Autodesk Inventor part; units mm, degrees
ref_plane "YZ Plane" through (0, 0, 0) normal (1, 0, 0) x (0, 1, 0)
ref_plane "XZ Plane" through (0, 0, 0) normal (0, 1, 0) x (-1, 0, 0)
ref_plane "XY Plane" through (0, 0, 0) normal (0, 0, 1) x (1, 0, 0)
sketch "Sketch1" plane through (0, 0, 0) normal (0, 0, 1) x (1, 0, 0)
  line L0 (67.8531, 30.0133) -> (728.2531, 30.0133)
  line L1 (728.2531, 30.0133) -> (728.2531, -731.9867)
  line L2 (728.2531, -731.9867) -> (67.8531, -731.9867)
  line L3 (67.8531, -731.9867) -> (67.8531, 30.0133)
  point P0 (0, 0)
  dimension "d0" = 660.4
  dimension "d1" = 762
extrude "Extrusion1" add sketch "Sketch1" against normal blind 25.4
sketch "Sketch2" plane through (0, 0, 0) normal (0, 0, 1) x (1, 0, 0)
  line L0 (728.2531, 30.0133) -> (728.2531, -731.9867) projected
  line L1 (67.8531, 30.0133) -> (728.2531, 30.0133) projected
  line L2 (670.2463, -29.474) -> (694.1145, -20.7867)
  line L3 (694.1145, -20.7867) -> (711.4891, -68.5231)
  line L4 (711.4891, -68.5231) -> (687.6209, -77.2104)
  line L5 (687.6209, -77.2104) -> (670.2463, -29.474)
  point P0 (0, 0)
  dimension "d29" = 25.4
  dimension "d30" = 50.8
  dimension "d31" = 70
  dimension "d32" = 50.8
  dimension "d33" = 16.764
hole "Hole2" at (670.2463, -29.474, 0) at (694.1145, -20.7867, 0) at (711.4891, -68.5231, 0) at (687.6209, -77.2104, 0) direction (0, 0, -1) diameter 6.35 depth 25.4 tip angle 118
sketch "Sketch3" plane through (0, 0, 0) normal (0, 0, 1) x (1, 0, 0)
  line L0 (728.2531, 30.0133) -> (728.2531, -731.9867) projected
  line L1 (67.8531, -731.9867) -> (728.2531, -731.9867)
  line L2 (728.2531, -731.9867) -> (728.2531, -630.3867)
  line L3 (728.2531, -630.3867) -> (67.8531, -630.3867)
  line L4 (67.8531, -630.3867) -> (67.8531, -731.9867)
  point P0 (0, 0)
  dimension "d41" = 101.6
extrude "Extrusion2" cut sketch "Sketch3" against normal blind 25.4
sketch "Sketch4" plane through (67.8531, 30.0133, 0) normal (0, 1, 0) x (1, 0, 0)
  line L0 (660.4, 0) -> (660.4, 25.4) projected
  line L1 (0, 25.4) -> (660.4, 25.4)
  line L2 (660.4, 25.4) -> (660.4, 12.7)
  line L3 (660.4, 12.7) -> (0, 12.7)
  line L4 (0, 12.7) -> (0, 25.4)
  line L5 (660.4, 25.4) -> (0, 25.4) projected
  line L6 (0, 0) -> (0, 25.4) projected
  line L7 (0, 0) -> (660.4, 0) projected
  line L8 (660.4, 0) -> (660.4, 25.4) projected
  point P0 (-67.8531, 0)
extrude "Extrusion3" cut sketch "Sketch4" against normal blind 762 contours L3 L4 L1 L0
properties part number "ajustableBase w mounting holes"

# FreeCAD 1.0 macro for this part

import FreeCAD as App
import Part
import Sketcher
Q = App.Units.Quantity


def add_polygon(sketch, points):
    """Adds a closed chain of lines whose ends are joined by coincident constraints."""
    first, n = sketch.GeometryCount, len(points)
    for a, b in zip(points, points[1:] + points[:1]):
        sketch.addGeometry(Part.LineSegment(App.Vector(*a, 0), App.Vector(*b, 0)), False)
    for i in range(n):
        sketch.addConstraint(Sketcher.Constraint("Coincident", first + i, 2, first + (i + 1) % n, 1))

doc = App.newDocument("Part")
params = doc.addObject("Spreadsheet::Sheet", "Params")
for row, (alias, value) in enumerate([
    ("sketch1_width", "26 in"),
    ("sketch1_height", "30 in"),
    ("pad1_length", "1 in"),
    ("sketch2_diameter", "0.25 in"),
    ("hole_diameter", "0.25 in"),
    ("hole_depth", "1 in"),
    ("sketch3_height", "4 in"),
    ("sketch3_width", "26 in"),
    ("pocket1_length", "1 in"),
    ("sketch4_width", "26 in"),
    ("sketch4_height", "0.5 in"),
    ("pocket2_length", "30 in"),
], start=1):
    params.set(f"A{row}", alias)
    params.set(f"B{row}", "=" + value)
    params.setAlias(f"B{row}", alias)

body = doc.addObject("PartDesign::Body", "Body")

# Sketch on XY plane
sketch1 = body.newObject("Sketcher::SketchObject", "Sketch")
sketch1.AttachmentSupport = (doc.getObject("XY_Plane"), [""])
sketch1.MapMode = "FlatFace"
add_polygon(sketch1, [(728.2531, 30.0133), (67.8531, 30.0133), (67.8531, -731.9867), (728.2531, -731.9867)])  # lines 0-3
sketch1.addConstraint([
    Sketcher.Constraint("Horizontal", 0),
    Sketcher.Constraint("Vertical", 1),
    Sketcher.Constraint("Horizontal", 2),
    Sketcher.Constraint("Vertical", 3),
    Sketcher.Constraint("DistanceX", 0, 2, 0, 1, Q("26 in")),
    Sketcher.Constraint("DistanceY", 1, 2, 1, 1, Q("30 in")),
    Sketcher.Constraint("DistanceX", -1, 1, 0, 2, Q("67.853 mm")),
    Sketcher.Constraint("DistanceY", -1, 1, 0, 2, Q("30.0133 mm")),
])
sketch1.setExpression("Constraints[8]", "Params.sketch1_width")
sketch1.setExpression("Constraints[9]", "Params.sketch1_height")
pad1 = body.newObject("PartDesign::Pad", "Pad")
pad1.Profile = sketch1
pad1.setExpression("Length", "Params.pad1_length")
pad1.Reversed = True

# Sketch on XY plane
sketch2 = body.newObject("Sketcher::SketchObject", "Sketch001")
sketch2.AttachmentSupport = (doc.getObject("XY_Plane"), [""])
sketch2.MapMode = "FlatFace"
sketch2.addGeometry([
    Part.Circle(App.Vector(670.2463, -29.474, 0), App.Vector(0, 0, 1), 3.175),
    Part.Circle(App.Vector(694.1145, -20.7867, 0), App.Vector(0, 0, 1), 3.175),
    Part.Circle(App.Vector(711.4891, -68.5231, 0), App.Vector(0, 0, 1), 3.175),
    Part.Circle(App.Vector(687.6209, -77.2104, 0), App.Vector(0, 0, 1), 3.175),
], False)
sketch2.addConstraint([
    Sketcher.Constraint("Equal", 0, 1),
    Sketcher.Constraint("Equal", 1, 2),
    Sketcher.Constraint("Equal", 2, 3),
    Sketcher.Constraint("Diameter", 0, Q("0.25 in")),
    Sketcher.Constraint("DistanceY", 0, 3, -1, 1, Q("1.1604 in")),
    Sketcher.Constraint("DistanceX", -1, 1, 3, 3, Q("27.0717 in")),
    Sketcher.Constraint("DistanceX", 0, 3, 1, 3, Q("0.9397 in")),
    Sketcher.Constraint("DistanceX", 3, 3, 2, 3, Q("0.9397 in")),
    Sketcher.Constraint("DistanceY", 3, 3, 1, 3, Q("2.2214 in")),
    Sketcher.Constraint("DistanceX", -1, 1, 0, 3, Q("670.2463 mm")),
    Sketcher.Constraint("DistanceY", 1, 3, -1, 1, Q("20.7867 mm")),
    Sketcher.Constraint("DistanceY", 2, 3, -1, 1, Q("68.523 mm")),
])
sketch2.setExpression("Constraints[3]", "Params.sketch2_diameter")
doc.recompute()
hole = body.newObject("PartDesign::Hole", "Hole")
hole.Profile = sketch2
hole.ThreadType = "None"
hole.setExpression("Diameter", "Params.hole_diameter")
hole.DepthType = "Dimension"
hole.setExpression("Depth", "Params.hole_depth")
hole.DrillPoint = "Angled"
hole.DrillPointAngle = 118

# Sketch on XY plane
sketch3 = body.newObject("Sketcher::SketchObject", "Sketch002")
sketch3.AttachmentSupport = (doc.getObject("XY_Plane"), [""])
sketch3.MapMode = "FlatFace"
add_polygon(sketch3, [(728.2531, -731.9867), (728.2531, -630.3867), (67.8531, -630.3867), (67.8531, -731.9867)])  # lines 0-3
sketch3.addConstraint([
    Sketcher.Constraint("Vertical", 0),
    Sketcher.Constraint("Horizontal", 1),
    Sketcher.Constraint("Vertical", 2),
    Sketcher.Constraint("Horizontal", 3),
    Sketcher.Constraint("DistanceY", 0, 1, 0, 2, Q("4 in")),
    Sketcher.Constraint("DistanceX", 1, 2, 1, 1, Q("26 in")),
    Sketcher.Constraint("DistanceX", -1, 1, 0, 2, Q("728.253 mm")),
    Sketcher.Constraint("DistanceY", 0, 2, -1, 1, Q("630.3867 mm")),
])
sketch3.setExpression("Constraints[8]", "Params.sketch3_height")
sketch3.setExpression("Constraints[9]", "Params.sketch3_width")
pocket1 = body.newObject("PartDesign::Pocket", "Pocket")
pocket1.Profile = sketch3
pocket1.setExpression("Length", "Params.pocket1_length")

# Sketch on XZ plane
sketch4 = body.newObject("Sketcher::SketchObject", "Sketch003")
sketch4.AttachmentSupport = (doc.getObject("XZ_Plane"), [""])
sketch4.MapMode = "FlatFace"
sketch4.AttachmentOffset = App.Placement(App.Vector(0, 0, -30.0133), App.Rotation())
add_polygon(sketch4, [(67.8531, -12.7), (728.2531, -12.7), (728.2531, -25.4), (67.8531, -25.4)])  # lines 0-3
sketch4.addConstraint([
    Sketcher.Constraint("Horizontal", 0),
    Sketcher.Constraint("Vertical", 1),
    Sketcher.Constraint("Horizontal", 2),
    Sketcher.Constraint("Vertical", 3),
    Sketcher.Constraint("DistanceX", 0, 1, 0, 2, Q("26 in")),
    Sketcher.Constraint("DistanceY", 1, 2, 1, 1, Q("0.5 in")),
    Sketcher.Constraint("DistanceY", 1, 2, -1, 1, Q("1 in")),
    Sketcher.Constraint("DistanceX", -1, 1, 0, 2, Q("728.253 mm")),
])
sketch4.setExpression("Constraints[8]", "Params.sketch4_width")
sketch4.setExpression("Constraints[9]", "Params.sketch4_height")
pocket2 = body.newObject("PartDesign::Pocket", "Pocket001")
pocket2.Profile = sketch4
pocket2.setExpression("Length", "Params.pocket2_length")
pocket2.Reversed = True

doc.recompute()
